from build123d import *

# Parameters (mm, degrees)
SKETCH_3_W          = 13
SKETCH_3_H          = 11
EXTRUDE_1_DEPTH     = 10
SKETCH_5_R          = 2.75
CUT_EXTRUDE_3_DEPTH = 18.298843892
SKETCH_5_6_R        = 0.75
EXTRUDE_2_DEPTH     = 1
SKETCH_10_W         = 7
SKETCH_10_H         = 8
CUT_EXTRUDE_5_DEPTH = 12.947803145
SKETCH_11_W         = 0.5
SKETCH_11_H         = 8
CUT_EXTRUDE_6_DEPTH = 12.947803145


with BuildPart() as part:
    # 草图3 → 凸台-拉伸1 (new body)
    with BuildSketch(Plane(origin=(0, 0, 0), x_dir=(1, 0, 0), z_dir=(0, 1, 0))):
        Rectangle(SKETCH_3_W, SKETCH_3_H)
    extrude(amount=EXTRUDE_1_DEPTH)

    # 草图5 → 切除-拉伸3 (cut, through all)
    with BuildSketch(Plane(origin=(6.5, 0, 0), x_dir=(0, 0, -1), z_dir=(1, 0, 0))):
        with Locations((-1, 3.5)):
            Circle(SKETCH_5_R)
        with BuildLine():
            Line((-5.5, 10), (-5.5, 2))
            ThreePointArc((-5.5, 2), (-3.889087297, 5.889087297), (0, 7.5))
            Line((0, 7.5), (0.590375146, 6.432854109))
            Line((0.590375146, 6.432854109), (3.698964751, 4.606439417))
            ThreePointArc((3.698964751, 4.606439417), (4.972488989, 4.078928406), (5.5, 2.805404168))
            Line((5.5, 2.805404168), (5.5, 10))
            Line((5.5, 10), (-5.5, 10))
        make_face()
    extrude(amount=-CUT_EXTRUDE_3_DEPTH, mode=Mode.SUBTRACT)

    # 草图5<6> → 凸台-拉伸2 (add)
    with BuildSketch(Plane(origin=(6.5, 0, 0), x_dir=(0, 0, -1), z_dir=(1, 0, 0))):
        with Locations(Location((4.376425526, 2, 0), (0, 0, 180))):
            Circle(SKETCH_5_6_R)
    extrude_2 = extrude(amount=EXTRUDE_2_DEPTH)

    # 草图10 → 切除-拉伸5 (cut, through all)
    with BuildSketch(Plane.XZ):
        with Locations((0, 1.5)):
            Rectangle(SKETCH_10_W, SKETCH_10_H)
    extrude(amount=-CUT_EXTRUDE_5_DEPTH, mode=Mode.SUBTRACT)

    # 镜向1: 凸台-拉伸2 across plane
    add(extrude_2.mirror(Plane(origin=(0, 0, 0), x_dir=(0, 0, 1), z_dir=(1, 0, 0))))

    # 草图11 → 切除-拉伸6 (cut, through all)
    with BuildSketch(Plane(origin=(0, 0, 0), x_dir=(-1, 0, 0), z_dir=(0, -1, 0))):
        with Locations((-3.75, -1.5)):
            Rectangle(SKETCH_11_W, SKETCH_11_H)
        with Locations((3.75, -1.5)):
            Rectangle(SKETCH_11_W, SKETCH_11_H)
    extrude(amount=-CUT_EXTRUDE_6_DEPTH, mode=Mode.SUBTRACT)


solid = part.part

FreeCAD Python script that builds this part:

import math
import FreeCAD as App
import Part
import Sketcher

doc = App.newDocument("Part")
body = doc.addObject("PartDesign::Body", "Body")

sketch1 = body.newObject("Sketcher::SketchObject", "Sketch")
sketch1.AttachmentSupport = (doc.getObject("XZ_Plane"), [""])
sketch1.MapMode = "FlatFace"
sketch1.addGeometry([
    Part.LineSegment(App.Vector(-6, -6, 0), App.Vector(-6, 6, 0)),
    Part.LineSegment(App.Vector(-6, 6, 0), App.Vector(6, 6, 0)),
    Part.LineSegment(App.Vector(6, 6, 0), App.Vector(6, -6, 0)),
    Part.LineSegment(App.Vector(6, -6, 0), App.Vector(-6, -6, 0)),
], False)
sketch1.addConstraint([
    Sketcher.Constraint("Coincident", 0, 2, 1, 1),
    Sketcher.Constraint("Coincident", 1, 2, 2, 1),
    Sketcher.Constraint("Coincident", 2, 2, 3, 1),
    Sketcher.Constraint("Coincident", 3, 2, 0, 1),
    Sketcher.Constraint("Vertical", 0),
    Sketcher.Constraint("Horizontal", 1),
    Sketcher.Constraint("Vertical", 2),
    Sketcher.Constraint("Horizontal", 3),
    Sketcher.Constraint("Symmetric", 0, 2, 2, 2, -1, 1),
    Sketcher.Constraint("DistanceX", 1, 1, 1, 2, 13.0),
    Sketcher.Constraint("DistanceY", 0, 1, 0, 2, 11.0),
])
pad1 = body.newObject("PartDesign::Pad", "Pad")
pad1.Profile = sketch1
pad1.Length = 10
pad1.Reversed = True

sketch2 = body.newObject("Sketcher::SketchObject", "Sketch001")
sketch2.AttachmentSupport = (doc.getObject("YZ_Plane"), [""])
sketch2.MapMode = "FlatFace"
sketch2.AttachmentOffset = App.Placement(App.Vector(0, 0, 6.5), App.Rotation())
sketch2.addGeometry([
    Part.Circle(App.Vector(3.5, 1, 0), App.Vector(0, 0, 1), 2.8),
    Part.LineSegment(App.Vector(10, 5.5, 0), App.Vector(2, 5.5, 0)),
    Part.ArcOfCircle(Part.Circle(App.Vector(2, 0, 0), App.Vector(0, 0, 1), 5.5), math.radians(0), math.radians(90)),
    Part.LineSegment(App.Vector(7.5, 0, 0), App.Vector(6.4, -0.6, 0)),
    Part.LineSegment(App.Vector(6.4, -0.6, 0), App.Vector(4.6, -3.7, 0)),
    Part.ArcOfCircle(Part.Circle(App.Vector(2.8, -3.7, 0), App.Vector(0, 0, 1), 1.8), math.radians(-90), math.radians(0)),
    Part.LineSegment(App.Vector(2.8, -5.5, 0), App.Vector(10, -5.5, 0)),
    Part.LineSegment(App.Vector(10, -5.5, 0), App.Vector(10, 5.5, 0)),
], False)
sketch2.addConstraint([
    Sketcher.Constraint("Tangent", 1, 2, 2, 2),
    Sketcher.Constraint("Coincident", 2, 1, 3, 1),
    Sketcher.Constraint("Coincident", 3, 2, 4, 1),
    Sketcher.Constraint("Coincident", 4, 2, 5, 2),
    Sketcher.Constraint("Tangent", 5, 1, 6, 1),
    Sketcher.Constraint("Coincident", 6, 2, 7, 1),
    Sketcher.Constraint("Coincident", 7, 2, 1, 1),
    Sketcher.Constraint("Horizontal", 1),
    Sketcher.Constraint("Horizontal", 6),
    Sketcher.Constraint("Vertical", 7),
    Sketcher.Constraint("PointOnObject", 2, 3, -1),
    Sketcher.Constraint("PointOnObject", 2, 1, -1),
    Sketcher.Constraint("Horizontal", 5, 3, 4, 2),
    Sketcher.Constraint("Diameter", 0, 5.5),
    Sketcher.Constraint("Radius", 2, 5.5),
    Sketcher.Constraint("DistanceX", 1, 2, 1, 1, 8.0),
    Sketcher.Constraint("DistanceY", 7, 1, 7, 2, 11.0),
    Sketcher.Constraint("DistanceY", -1, 1, 0, 3, 1.0),
    Sketcher.Constraint("DistanceX", -1, 1, 2, 3, 2.0),
    Sketcher.Constraint("DistanceX", 0, 3, 2, 1, 4.0),
    Sketcher.Constraint("Radius", 5, 1.801035),
    Sketcher.Constraint("Distance", 4, 3.605429),
    Sketcher.Constraint("DistanceX", 6, 1, 6, 2, 7.194596),
    Sketcher.Constraint("DistanceX", 5, 3, 3, 2, 3.62745),
])
pocket1 = body.newObject("PartDesign::Pocket", "Pocket")
pocket1.Profile = sketch2
pocket1.Type = "ThroughAll"

sketch3 = body.newObject("Sketcher::SketchObject", "Sketch002")
sketch3.AttachmentSupport = (doc.getObject("YZ_Plane"), [""])
sketch3.MapMode = "FlatFace"
sketch3.AttachmentOffset = App.Placement(App.Vector(0, 0, 6.5), App.Rotation())
sketch3.addGeometry(Part.Circle(App.Vector(2, -4.4, 0), App.Vector(0, 0, 1), 0.8), False)
sketch3.addConstraint([
    Sketcher.Constraint("Diameter", 0, 1.5),
    Sketcher.Constraint("DistanceX", -1, 1, 0, 3, 2.0),
    Sketcher.Constraint("DistanceY", 0, 3, -1, 1, 4.376426),
])
pad2 = body.newObject("PartDesign::Pad", "Pad001")
pad2.Profile = sketch3
pad2.Length = 1

sketch4 = body.newObject("Sketcher::SketchObject", "Sketch003")
sketch4.AttachmentSupport = (doc.getObject("XZ_Plane"), [""])
sketch4.MapMode = "FlatFace"
sketch4.addGeometry([
    Part.LineSegment(App.Vector(-4, 6, 0), App.Vector(-4, -2, 0)),
    Part.LineSegment(App.Vector(-4, -2, 0), App.Vector(4, -2, 0)),
    Part.LineSegment(App.Vector(4, -2, 0), App.Vector(4, 6, 0)),
    Part.LineSegment(App.Vector(4, 6, 0), App.Vector(-4, 6, 0)),
], False)
sketch4.addConstraint([
    Sketcher.Constraint("Coincident", 0, 2, 1, 1),
    Sketcher.Constraint("Coincident", 1, 2, 2, 1),
    Sketcher.Constraint("Coincident", 2, 2, 3, 1),
    Sketcher.Constraint("Coincident", 3, 2, 0, 1),
    Sketcher.Constraint("Vertical", 0),
    Sketcher.Constraint("Horizontal", 1),
    Sketcher.Constraint("Vertical", 2),
    Sketcher.Constraint("Horizontal", 3),
    Sketcher.Constraint("DistanceX", 1, 1, 1, 2, 7.0),
    Sketcher.Constraint("DistanceY", 0, 2, 0, 1, 8.0),
    Sketcher.Constraint("DistanceX", 0, 2, -1, 1, 3.5),
    Sketcher.Constraint("DistanceY", 0, 2, -1, 1, 2.5),
])
pocket2 = body.newObject("PartDesign::Pocket", "Pocket001")
pocket2.Profile = sketch4
pocket2.Type = "ThroughAll"
doc.recompute()

mirrored = body.newObject("PartDesign::Mirrored", "Mirrored")
mirrored.Originals = [pad2]
mirrored.MirrorPlane = (doc.getObject("YZ_Plane"), [""])
body.Tip = mirrored

sketch5 = body.newObject("Sketcher::SketchObject", "Sketch004")
sketch5.AttachmentSupport = (doc.getObject("XZ_Plane"), [""])
sketch5.MapMode = "FlatFace"
sketch5.addGeometry([
    Part.LineSegment(App.Vector(4, -2.5, 0), App.Vector(4, 5.5, 0)),
    Part.LineSegment(App.Vector(4, 5.5, 0), App.Vector(3.5, 5.5, 0)),
    Part.LineSegment(App.Vector(3.5, 5.5, 0), App.Vector(3.5, -2.5, 0)),
    Part.LineSegment(App.Vector(3.5, -2.5, 0), App.Vector(4, -2.5, 0)),
    Part.LineSegment(App.Vector(-3.5, -2.5, 0), App.Vector(-3.5, 5.5, 0)),
    Part.LineSegment(App.Vector(-3.5, 5.5, 0), App.Vector(-4, 5.5, 0)),
    Part.LineSegment(App.Vector(-4, 5.5, 0), App.Vector(-4, -2.5, 0)),
    Part.LineSegment(App.Vector(-4, -2.5, 0), App.Vector(-3.5, -2.5, 0)),
], False)
sketch5.addConstraint([
    Sketcher.Constraint("Coincident", 0, 2, 1, 1),
    Sketcher.Constraint("Coincident", 1, 2, 2, 1),
    Sketcher.Constraint("Coincident", 2, 2, 3, 1),
    Sketcher.Constraint("Coincident", 3, 2, 0, 1),
    Sketcher.Constraint("Coincident", 4, 2, 5, 1),
    Sketcher.Constraint("Coincident", 5, 2, 6, 1),
    Sketcher.Constraint("Coincident", 6, 2, 7, 1),
    Sketcher.Constraint("Coincident", 7, 2, 4, 1),
    Sketcher.Constraint("Vertical", 0),
    Sketcher.Constraint("Horizontal", 1),
    Sketcher.Constraint("Vertical", 2),
    Sketcher.Constraint("Horizontal", 3),
    Sketcher.Constraint("Vertical", 4),
    Sketcher.Constraint("Horizontal", 5),
    Sketcher.Constraint("Vertical", 6),
    Sketcher.Constraint("Horizontal", 7),
    Sketcher.Constraint("Symmetric", 1, 2, 4, 2, -2),
    Sketcher.Constraint("Symmetric", 3, 2, 6, 2, -2),
    Sketcher.Constraint("DistanceY", 0, 1, 0, 2, 8.0),
    Sketcher.Constraint("DistanceX", 1, 2, 1, 1, 0.5),
    Sketcher.Constraint("DistanceX", -1, 1, 0, 2, 4.0),
    Sketcher.Constraint("DistanceY", -1, 1, 0, 2, 5.5),
])
pocket3 = body.newObject("PartDesign::Pocket", "Pocket002")
pocket3.Profile = sketch5
pocket3.Type = "ThroughAll"

doc.recompute()
